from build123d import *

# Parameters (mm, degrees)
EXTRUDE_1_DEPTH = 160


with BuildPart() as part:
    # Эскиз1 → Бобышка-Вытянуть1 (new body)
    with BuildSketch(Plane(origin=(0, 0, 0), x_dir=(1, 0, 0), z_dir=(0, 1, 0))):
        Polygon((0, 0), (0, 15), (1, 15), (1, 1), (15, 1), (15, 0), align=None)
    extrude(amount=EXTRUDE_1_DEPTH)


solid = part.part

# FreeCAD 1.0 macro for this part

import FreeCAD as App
import Part
import Sketcher
Q = App.Units.Quantity

doc = App.newDocument("Part")
params = doc.addObject("Spreadsheet::Sheet", "Params")
for row, (alias, value) in enumerate([
    ("sketch1_width", "15 mm"),
    ("sketch1_width2", "14 mm"),
    ("pad1_length", "160 mm"),
], start=1):
    params.set(f"A{row}", alias)
    params.set(f"B{row}", "=" + value)
    params.setAlias(f"B{row}", alias)

body = doc.addObject("PartDesign::Body", "Body")

# Sketch on XZ plane
sketch1 = body.newObject("Sketcher::SketchObject", "Sketch")
sketch1.AttachmentSupport = (doc.getObject("XZ_Plane"), [""])
sketch1.MapMode = "FlatFace"
sketch1.addGeometry([
    Part.LineSegment(App.Vector(0, -15, 0), App.Vector(0, 0, 0)),  # 0
    Part.LineSegment(App.Vector(0, 0, 0), App.Vector(15, 0, 0)),  # 1
    Part.LineSegment(App.Vector(15, 0, 0), App.Vector(15, -1, 0)),  # 2
    Part.LineSegment(App.Vector(15, -1, 0), App.Vector(1, -1, 0)),  # 3
    Part.LineSegment(App.Vector(1, -1, 0), App.Vector(1, -15, 0)),  # 4
    Part.LineSegment(App.Vector(1, -15, 0), App.Vector(0, -15, 0)),  # 5
], False)
sketch1.addConstraint([
    Sketcher.Constraint("Coincident", 0, 2, 1, 1),
    Sketcher.Constraint("Coincident", 1, 2, 2, 1),
    Sketcher.Constraint("Coincident", 2, 2, 3, 1),
    Sketcher.Constraint("Coincident", 3, 2, 4, 1),
    Sketcher.Constraint("Coincident", 4, 2, 5, 1),
    Sketcher.Constraint("Coincident", 5, 2, 0, 1),
    Sketcher.Constraint("Vertical", 0),
    Sketcher.Constraint("Horizontal", 1),
    Sketcher.Constraint("Vertical", 2),
    Sketcher.Constraint("Horizontal", 3),
    Sketcher.Constraint("Vertical", 4),
    Sketcher.Constraint("Horizontal", 5),
    Sketcher.Constraint("Coincident", 0, 2, -1, 1),
    Sketcher.Constraint("Equal", 1, 0),
    Sketcher.Constraint("Equal", 5, 2),
    Sketcher.Constraint("DistanceX", 1, 1, 1, 2, Q("15 mm")),
    Sketcher.Constraint("DistanceX", 3, 2, 3, 1, Q("14 mm")),
])
sketch1.setExpression("Constraints[15]", "Params.sketch1_width")
sketch1.setExpression("Constraints[16]", "Params.sketch1_width2")
pad1 = body.newObject("PartDesign::Pad", "Pad")
pad1.Profile = sketch1
pad1.setExpression("Length", "Params.pad1_length")
pad1.Reversed = True

doc.recompute()
